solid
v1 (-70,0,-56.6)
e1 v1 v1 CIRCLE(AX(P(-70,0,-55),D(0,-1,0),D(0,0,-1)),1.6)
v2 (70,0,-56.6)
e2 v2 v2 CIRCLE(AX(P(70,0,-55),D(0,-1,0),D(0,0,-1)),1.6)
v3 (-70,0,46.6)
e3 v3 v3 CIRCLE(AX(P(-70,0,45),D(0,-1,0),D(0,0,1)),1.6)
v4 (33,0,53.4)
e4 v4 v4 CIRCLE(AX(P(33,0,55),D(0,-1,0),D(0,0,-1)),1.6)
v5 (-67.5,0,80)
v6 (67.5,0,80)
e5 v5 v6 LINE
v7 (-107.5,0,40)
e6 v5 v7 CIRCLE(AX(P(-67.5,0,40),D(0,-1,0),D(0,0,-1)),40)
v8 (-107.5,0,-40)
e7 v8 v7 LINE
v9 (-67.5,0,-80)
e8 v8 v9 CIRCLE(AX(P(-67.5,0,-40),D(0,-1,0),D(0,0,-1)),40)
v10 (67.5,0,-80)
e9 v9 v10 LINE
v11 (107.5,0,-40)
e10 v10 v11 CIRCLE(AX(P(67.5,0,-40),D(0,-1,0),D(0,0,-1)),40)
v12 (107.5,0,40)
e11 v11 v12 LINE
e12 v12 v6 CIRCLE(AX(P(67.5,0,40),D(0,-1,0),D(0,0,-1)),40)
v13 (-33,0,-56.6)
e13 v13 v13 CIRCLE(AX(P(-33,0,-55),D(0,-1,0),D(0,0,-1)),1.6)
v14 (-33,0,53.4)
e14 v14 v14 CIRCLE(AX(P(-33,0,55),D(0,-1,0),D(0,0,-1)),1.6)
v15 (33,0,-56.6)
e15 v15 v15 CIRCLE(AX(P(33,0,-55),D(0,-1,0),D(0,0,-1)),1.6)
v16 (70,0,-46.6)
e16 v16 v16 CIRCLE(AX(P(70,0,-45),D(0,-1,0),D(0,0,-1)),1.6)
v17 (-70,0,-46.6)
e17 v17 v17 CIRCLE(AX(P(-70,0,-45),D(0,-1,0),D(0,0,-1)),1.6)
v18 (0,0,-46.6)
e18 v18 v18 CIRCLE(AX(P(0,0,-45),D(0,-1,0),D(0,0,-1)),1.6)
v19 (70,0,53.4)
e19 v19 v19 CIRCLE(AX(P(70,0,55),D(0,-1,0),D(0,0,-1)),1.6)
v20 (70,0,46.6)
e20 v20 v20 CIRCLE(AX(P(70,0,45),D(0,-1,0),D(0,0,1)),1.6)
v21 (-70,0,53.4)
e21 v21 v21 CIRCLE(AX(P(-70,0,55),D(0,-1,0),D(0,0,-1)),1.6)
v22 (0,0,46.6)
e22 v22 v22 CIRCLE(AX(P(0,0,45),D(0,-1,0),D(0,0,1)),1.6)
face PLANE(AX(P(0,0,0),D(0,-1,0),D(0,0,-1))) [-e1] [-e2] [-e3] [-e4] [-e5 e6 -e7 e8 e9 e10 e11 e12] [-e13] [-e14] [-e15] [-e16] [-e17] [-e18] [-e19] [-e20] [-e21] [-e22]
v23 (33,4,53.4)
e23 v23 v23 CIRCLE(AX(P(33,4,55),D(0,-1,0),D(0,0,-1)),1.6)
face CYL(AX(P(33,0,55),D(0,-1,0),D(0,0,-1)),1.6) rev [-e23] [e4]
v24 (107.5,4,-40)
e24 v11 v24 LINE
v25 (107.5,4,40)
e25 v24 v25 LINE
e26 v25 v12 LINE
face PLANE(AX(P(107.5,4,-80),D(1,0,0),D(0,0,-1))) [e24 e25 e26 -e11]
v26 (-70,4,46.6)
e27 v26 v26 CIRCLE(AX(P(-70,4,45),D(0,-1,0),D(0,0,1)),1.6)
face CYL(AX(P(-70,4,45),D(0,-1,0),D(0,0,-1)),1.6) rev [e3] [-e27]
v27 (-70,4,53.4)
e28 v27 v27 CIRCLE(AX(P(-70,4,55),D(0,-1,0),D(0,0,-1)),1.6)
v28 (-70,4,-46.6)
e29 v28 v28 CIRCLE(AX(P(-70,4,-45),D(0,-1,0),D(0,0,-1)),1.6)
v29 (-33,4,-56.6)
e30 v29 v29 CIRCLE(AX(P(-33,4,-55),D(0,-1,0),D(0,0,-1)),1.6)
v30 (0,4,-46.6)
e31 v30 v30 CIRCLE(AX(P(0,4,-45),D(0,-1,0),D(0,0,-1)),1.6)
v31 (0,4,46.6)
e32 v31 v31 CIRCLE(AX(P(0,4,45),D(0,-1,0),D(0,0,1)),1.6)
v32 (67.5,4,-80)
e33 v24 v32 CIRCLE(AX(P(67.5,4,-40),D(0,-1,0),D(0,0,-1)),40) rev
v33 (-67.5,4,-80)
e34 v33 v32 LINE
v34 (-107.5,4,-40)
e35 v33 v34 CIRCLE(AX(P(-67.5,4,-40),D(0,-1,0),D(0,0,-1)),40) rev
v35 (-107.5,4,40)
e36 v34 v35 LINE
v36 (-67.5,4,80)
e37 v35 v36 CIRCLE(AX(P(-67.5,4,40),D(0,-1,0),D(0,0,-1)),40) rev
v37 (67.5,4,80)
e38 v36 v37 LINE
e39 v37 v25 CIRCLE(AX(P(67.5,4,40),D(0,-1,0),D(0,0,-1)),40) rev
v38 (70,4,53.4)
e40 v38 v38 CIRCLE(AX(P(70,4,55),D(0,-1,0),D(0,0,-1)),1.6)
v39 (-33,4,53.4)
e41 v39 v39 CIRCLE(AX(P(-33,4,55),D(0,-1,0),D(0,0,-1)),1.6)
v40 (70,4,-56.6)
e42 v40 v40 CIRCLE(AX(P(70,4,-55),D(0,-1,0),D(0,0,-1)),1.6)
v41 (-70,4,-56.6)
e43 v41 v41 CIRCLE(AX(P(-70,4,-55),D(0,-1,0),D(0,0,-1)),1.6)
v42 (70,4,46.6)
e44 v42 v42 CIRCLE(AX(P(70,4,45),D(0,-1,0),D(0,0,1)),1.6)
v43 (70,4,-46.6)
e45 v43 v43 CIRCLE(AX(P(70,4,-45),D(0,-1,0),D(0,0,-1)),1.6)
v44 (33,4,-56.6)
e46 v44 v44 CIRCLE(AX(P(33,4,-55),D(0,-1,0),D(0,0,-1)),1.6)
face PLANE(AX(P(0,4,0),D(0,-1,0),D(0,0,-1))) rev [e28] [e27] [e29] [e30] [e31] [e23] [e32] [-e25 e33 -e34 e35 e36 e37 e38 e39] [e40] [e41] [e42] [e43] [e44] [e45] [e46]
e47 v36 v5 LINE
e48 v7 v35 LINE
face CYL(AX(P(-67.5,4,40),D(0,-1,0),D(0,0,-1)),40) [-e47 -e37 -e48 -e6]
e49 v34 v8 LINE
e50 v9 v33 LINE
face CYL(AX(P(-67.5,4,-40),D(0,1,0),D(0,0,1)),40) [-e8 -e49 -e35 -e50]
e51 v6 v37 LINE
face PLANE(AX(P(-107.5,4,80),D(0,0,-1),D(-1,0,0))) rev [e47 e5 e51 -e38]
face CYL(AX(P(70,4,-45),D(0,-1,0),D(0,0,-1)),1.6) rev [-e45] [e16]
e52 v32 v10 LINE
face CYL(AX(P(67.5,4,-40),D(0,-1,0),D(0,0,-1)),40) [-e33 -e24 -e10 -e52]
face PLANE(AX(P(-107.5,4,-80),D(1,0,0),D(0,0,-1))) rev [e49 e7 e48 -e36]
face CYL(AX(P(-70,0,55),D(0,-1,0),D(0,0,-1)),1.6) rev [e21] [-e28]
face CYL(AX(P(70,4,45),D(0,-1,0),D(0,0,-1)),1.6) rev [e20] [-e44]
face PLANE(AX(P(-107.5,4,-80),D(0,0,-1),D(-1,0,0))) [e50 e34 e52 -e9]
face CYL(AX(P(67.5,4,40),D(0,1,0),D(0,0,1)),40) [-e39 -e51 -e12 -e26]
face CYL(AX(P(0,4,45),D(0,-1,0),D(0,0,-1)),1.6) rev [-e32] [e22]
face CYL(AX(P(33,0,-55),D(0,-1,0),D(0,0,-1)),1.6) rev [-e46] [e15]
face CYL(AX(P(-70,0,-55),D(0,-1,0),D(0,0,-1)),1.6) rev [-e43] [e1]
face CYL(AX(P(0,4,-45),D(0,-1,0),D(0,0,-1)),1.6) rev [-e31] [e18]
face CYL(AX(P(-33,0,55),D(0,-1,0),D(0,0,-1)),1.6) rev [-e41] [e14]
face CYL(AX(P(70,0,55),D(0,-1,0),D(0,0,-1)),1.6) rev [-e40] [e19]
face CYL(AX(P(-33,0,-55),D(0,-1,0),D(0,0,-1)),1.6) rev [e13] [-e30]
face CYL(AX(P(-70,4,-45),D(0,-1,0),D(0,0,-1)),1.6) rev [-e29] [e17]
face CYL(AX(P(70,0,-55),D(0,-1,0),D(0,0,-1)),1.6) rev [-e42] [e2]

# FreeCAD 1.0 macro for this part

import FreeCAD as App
import Part
import Sketcher
from FreeCAD import Vector


def edges_at(feature, points):
    """Names of the edges that pass closest to the given points."""
    edges = feature.Shape.Edges
    near = lambda p: min(range(len(edges)), key=lambda i: edges[i].distToShape(Part.Vertex(*p))[0])
    return sorted({f"Edge{near(p) + 1}" for p in points})

doc = App.newDocument("Part")
body = doc.addObject("PartDesign::Body", "Body")

# Sketch on XZ plane
sketch1 = body.newObject("Sketcher::SketchObject", "Sketch")
sketch1.AttachmentSupport = (doc.getObject("XZ_Plane"), [""])
sketch1.MapMode = "FlatFace"
sketch1.addGeometry([
    Part.LineSegment(Vector(-108, -80, 0), Vector(-108, 80, 0)),
    Part.LineSegment(Vector(-108, 80, 0), Vector(108, 80, 0)),
    Part.LineSegment(Vector(108, 80, 0), Vector(108, -80, 0)),
    Part.LineSegment(Vector(108, -80, 0), Vector(-108, -80, 0)),
], False)
sketch1.addConstraint([
    Sketcher.Constraint("Coincident", 0, 2, 1, 1),
    Sketcher.Constraint("Coincident", 1, 2, 2, 1),
    Sketcher.Constraint("Coincident", 2, 2, 3, 1),
    Sketcher.Constraint("Coincident", 3, 2, 0, 1),
    Sketcher.Constraint("Vertical", 0),
    Sketcher.Constraint("Horizontal", 1),
    Sketcher.Constraint("Vertical", 2),
    Sketcher.Constraint("Horizontal", 3),
    Sketcher.Constraint("Symmetric", 0, 2, 2, 2, -1, 1),
    Sketcher.Constraint("DistanceX", 1, 1, 1, 2, 215.0),
    Sketcher.Constraint("DistanceY", 0, 1, 0, 2, 160.0),
])
pad1 = body.newObject("PartDesign::Pad", "Pad")
pad1.Profile = sketch1
pad1.Length = 4
pad1.Reversed = True

# Sketch on XZ plane
sketch2 = body.newObject("Sketcher::SketchObject", "Sketch001")
sketch2.AttachmentSupport = (doc.getObject("XZ_Plane"), [""])
sketch2.MapMode = "FlatFace"
sketch2.addGeometry([
    Part.Circle(Vector(-70, 55, 0), Vector(0, 0, 1), 1.6),  # 0
    Part.Circle(Vector(33, 55, 0), Vector(0, 0, 1), 1.6),  # 1
    Part.Circle(Vector(-33, 55, 0), Vector(0, 0, 1), 1.6),  # 2
    Part.Circle(Vector(70, 55, 0), Vector(0, 0, 1), 1.6),  # 3
    Part.Circle(Vector(70, -55, 0), Vector(0, 0, 1), 1.6),  # 4
    Part.Circle(Vector(33, -55, 0), Vector(0, 0, 1), 1.6),  # 5
    Part.Circle(Vector(-33, -55, 0), Vector(0, 0, 1), 1.6),  # 6
    Part.Circle(Vector(-70, -55, 0), Vector(0, 0, 1), 1.6),  # 7
], False)
sketch2.addConstraint([
    Sketcher.Constraint("Equal", 0, 1),
    Sketcher.Constraint("Equal", 1, 2),
    Sketcher.Constraint("Equal", 2, 3),
    Sketcher.Constraint("Equal", 3, 4),
    Sketcher.Constraint("Equal", 4, 5),
    Sketcher.Constraint("Equal", 5, 6),
    Sketcher.Constraint("Equal", 6, 7),
    Sketcher.Constraint("Symmetric", 0, 3, 4, 3, -1, 1),
    Sketcher.Constraint("Symmetric", 2, 3, 5, 3, -1, 1),
    Sketcher.Constraint("Symmetric", 1, 3, 6, 3, -1, 1),
    Sketcher.Constraint("Symmetric", 3, 3, 7, 3, -1, 1),
    Sketcher.Constraint("Symmetric", 1, 3, 2, 3, -2),
    Sketcher.Constraint("Symmetric", 0, 3, 3, 3, -2),
    Sketcher.Constraint("Horizontal", 0, 3, 1, 3),
    Sketcher.Constraint("Diameter", 0, 3.2),
    Sketcher.Constraint("DistanceX", 0, 3, -1, 1, 70.0),
    Sketcher.Constraint("DistanceY", -1, 1, 0, 3, 55.0),
    Sketcher.Constraint("DistanceX", -1, 1, 1, 3, 33.0),
])
doc.recompute()
hole = body.newObject("PartDesign::Hole", "Hole")
hole.Profile = sketch2
hole.ThreadType = "None"
hole.Diameter = 3.2
hole.DepthType = "ThroughAll"
doc.recompute()

fillet = body.newObject("PartDesign::Fillet", "Fillet")
fillet.Base = (hole, edges_at(hole, [(-107.5, 2, 80), (-107.5, 2, -80)]))
fillet.Radius = 40
doc.recompute()

fillet2 = body.newObject("PartDesign::Fillet", "Fillet001")
fillet2.Base = (fillet, edges_at(fillet, [(107.5, 2, -80), (107.5, 2, 80)]))
fillet2.Radius = 40

# Sketch on XZ plane
sketch3 = body.newObject("Sketcher::SketchObject", "Sketch002")
sketch3.AttachmentSupport = (doc.getObject("XZ_Plane"), [""])
sketch3.MapMode = "FlatFace"
sketch3.addGeometry([
    Part.Circle(Vector(-70, -45, 0), Vector(0, 0, 1), 1.6),  # 0
    Part.Circle(Vector(0, -45, 0), Vector(0, 0, 1), 1.6),  # 1
    Part.Circle(Vector(70, -45, 0), Vector(0, 0, 1), 1.6),  # 2
    Part.Circle(Vector(70, 45, 0), Vector(0, 0, 1), 1.6),  # 3
    Part.Circle(Vector(0, 45, 0), Vector(0, 0, 1), 1.6),  # 4
    Part.Circle(Vector(-70, 45, 0), Vector(0, 0, 1), 1.6),  # 5
], False)
sketch3.addConstraint([
    Sketcher.Constraint("Equal", 0, 1),
    Sketcher.Constraint("Equal", 1, 2),
    Sketcher.Constraint("Equal", 2, 3),
    Sketcher.Constraint("Equal", 3, 4),
    Sketcher.Constraint("Equal", 4, 5),
    Sketcher.Constraint("Symmetric", 0, 3, 3, 3, -1, 1),
    Sketcher.Constraint("Symmetric", 1, 3, 4, 3, -1, 1),
    Sketcher.Constraint("Symmetric", 2, 3, 5, 3, -1, 1),
    Sketcher.Constraint("Symmetric", 0, 3, 2, 3, -2),
    Sketcher.Constraint("PointOnObject", 1, 3, -2),
    Sketcher.Constraint("Horizontal", 0, 3, 1, 3),
    Sketcher.Constraint("Diameter", 0, 3.2),
    Sketcher.Constraint("DistanceX", 0, 3, -1, 1, 70.0),
    Sketcher.Constraint("DistanceY", 0, 3, -1, 1, 45.0),
])
pocket1 = body.newObject("PartDesign::Pocket", "Pocket")
pocket1.Profile = sketch3
pocket1.Type = "ThroughAll"

doc.recompute()
